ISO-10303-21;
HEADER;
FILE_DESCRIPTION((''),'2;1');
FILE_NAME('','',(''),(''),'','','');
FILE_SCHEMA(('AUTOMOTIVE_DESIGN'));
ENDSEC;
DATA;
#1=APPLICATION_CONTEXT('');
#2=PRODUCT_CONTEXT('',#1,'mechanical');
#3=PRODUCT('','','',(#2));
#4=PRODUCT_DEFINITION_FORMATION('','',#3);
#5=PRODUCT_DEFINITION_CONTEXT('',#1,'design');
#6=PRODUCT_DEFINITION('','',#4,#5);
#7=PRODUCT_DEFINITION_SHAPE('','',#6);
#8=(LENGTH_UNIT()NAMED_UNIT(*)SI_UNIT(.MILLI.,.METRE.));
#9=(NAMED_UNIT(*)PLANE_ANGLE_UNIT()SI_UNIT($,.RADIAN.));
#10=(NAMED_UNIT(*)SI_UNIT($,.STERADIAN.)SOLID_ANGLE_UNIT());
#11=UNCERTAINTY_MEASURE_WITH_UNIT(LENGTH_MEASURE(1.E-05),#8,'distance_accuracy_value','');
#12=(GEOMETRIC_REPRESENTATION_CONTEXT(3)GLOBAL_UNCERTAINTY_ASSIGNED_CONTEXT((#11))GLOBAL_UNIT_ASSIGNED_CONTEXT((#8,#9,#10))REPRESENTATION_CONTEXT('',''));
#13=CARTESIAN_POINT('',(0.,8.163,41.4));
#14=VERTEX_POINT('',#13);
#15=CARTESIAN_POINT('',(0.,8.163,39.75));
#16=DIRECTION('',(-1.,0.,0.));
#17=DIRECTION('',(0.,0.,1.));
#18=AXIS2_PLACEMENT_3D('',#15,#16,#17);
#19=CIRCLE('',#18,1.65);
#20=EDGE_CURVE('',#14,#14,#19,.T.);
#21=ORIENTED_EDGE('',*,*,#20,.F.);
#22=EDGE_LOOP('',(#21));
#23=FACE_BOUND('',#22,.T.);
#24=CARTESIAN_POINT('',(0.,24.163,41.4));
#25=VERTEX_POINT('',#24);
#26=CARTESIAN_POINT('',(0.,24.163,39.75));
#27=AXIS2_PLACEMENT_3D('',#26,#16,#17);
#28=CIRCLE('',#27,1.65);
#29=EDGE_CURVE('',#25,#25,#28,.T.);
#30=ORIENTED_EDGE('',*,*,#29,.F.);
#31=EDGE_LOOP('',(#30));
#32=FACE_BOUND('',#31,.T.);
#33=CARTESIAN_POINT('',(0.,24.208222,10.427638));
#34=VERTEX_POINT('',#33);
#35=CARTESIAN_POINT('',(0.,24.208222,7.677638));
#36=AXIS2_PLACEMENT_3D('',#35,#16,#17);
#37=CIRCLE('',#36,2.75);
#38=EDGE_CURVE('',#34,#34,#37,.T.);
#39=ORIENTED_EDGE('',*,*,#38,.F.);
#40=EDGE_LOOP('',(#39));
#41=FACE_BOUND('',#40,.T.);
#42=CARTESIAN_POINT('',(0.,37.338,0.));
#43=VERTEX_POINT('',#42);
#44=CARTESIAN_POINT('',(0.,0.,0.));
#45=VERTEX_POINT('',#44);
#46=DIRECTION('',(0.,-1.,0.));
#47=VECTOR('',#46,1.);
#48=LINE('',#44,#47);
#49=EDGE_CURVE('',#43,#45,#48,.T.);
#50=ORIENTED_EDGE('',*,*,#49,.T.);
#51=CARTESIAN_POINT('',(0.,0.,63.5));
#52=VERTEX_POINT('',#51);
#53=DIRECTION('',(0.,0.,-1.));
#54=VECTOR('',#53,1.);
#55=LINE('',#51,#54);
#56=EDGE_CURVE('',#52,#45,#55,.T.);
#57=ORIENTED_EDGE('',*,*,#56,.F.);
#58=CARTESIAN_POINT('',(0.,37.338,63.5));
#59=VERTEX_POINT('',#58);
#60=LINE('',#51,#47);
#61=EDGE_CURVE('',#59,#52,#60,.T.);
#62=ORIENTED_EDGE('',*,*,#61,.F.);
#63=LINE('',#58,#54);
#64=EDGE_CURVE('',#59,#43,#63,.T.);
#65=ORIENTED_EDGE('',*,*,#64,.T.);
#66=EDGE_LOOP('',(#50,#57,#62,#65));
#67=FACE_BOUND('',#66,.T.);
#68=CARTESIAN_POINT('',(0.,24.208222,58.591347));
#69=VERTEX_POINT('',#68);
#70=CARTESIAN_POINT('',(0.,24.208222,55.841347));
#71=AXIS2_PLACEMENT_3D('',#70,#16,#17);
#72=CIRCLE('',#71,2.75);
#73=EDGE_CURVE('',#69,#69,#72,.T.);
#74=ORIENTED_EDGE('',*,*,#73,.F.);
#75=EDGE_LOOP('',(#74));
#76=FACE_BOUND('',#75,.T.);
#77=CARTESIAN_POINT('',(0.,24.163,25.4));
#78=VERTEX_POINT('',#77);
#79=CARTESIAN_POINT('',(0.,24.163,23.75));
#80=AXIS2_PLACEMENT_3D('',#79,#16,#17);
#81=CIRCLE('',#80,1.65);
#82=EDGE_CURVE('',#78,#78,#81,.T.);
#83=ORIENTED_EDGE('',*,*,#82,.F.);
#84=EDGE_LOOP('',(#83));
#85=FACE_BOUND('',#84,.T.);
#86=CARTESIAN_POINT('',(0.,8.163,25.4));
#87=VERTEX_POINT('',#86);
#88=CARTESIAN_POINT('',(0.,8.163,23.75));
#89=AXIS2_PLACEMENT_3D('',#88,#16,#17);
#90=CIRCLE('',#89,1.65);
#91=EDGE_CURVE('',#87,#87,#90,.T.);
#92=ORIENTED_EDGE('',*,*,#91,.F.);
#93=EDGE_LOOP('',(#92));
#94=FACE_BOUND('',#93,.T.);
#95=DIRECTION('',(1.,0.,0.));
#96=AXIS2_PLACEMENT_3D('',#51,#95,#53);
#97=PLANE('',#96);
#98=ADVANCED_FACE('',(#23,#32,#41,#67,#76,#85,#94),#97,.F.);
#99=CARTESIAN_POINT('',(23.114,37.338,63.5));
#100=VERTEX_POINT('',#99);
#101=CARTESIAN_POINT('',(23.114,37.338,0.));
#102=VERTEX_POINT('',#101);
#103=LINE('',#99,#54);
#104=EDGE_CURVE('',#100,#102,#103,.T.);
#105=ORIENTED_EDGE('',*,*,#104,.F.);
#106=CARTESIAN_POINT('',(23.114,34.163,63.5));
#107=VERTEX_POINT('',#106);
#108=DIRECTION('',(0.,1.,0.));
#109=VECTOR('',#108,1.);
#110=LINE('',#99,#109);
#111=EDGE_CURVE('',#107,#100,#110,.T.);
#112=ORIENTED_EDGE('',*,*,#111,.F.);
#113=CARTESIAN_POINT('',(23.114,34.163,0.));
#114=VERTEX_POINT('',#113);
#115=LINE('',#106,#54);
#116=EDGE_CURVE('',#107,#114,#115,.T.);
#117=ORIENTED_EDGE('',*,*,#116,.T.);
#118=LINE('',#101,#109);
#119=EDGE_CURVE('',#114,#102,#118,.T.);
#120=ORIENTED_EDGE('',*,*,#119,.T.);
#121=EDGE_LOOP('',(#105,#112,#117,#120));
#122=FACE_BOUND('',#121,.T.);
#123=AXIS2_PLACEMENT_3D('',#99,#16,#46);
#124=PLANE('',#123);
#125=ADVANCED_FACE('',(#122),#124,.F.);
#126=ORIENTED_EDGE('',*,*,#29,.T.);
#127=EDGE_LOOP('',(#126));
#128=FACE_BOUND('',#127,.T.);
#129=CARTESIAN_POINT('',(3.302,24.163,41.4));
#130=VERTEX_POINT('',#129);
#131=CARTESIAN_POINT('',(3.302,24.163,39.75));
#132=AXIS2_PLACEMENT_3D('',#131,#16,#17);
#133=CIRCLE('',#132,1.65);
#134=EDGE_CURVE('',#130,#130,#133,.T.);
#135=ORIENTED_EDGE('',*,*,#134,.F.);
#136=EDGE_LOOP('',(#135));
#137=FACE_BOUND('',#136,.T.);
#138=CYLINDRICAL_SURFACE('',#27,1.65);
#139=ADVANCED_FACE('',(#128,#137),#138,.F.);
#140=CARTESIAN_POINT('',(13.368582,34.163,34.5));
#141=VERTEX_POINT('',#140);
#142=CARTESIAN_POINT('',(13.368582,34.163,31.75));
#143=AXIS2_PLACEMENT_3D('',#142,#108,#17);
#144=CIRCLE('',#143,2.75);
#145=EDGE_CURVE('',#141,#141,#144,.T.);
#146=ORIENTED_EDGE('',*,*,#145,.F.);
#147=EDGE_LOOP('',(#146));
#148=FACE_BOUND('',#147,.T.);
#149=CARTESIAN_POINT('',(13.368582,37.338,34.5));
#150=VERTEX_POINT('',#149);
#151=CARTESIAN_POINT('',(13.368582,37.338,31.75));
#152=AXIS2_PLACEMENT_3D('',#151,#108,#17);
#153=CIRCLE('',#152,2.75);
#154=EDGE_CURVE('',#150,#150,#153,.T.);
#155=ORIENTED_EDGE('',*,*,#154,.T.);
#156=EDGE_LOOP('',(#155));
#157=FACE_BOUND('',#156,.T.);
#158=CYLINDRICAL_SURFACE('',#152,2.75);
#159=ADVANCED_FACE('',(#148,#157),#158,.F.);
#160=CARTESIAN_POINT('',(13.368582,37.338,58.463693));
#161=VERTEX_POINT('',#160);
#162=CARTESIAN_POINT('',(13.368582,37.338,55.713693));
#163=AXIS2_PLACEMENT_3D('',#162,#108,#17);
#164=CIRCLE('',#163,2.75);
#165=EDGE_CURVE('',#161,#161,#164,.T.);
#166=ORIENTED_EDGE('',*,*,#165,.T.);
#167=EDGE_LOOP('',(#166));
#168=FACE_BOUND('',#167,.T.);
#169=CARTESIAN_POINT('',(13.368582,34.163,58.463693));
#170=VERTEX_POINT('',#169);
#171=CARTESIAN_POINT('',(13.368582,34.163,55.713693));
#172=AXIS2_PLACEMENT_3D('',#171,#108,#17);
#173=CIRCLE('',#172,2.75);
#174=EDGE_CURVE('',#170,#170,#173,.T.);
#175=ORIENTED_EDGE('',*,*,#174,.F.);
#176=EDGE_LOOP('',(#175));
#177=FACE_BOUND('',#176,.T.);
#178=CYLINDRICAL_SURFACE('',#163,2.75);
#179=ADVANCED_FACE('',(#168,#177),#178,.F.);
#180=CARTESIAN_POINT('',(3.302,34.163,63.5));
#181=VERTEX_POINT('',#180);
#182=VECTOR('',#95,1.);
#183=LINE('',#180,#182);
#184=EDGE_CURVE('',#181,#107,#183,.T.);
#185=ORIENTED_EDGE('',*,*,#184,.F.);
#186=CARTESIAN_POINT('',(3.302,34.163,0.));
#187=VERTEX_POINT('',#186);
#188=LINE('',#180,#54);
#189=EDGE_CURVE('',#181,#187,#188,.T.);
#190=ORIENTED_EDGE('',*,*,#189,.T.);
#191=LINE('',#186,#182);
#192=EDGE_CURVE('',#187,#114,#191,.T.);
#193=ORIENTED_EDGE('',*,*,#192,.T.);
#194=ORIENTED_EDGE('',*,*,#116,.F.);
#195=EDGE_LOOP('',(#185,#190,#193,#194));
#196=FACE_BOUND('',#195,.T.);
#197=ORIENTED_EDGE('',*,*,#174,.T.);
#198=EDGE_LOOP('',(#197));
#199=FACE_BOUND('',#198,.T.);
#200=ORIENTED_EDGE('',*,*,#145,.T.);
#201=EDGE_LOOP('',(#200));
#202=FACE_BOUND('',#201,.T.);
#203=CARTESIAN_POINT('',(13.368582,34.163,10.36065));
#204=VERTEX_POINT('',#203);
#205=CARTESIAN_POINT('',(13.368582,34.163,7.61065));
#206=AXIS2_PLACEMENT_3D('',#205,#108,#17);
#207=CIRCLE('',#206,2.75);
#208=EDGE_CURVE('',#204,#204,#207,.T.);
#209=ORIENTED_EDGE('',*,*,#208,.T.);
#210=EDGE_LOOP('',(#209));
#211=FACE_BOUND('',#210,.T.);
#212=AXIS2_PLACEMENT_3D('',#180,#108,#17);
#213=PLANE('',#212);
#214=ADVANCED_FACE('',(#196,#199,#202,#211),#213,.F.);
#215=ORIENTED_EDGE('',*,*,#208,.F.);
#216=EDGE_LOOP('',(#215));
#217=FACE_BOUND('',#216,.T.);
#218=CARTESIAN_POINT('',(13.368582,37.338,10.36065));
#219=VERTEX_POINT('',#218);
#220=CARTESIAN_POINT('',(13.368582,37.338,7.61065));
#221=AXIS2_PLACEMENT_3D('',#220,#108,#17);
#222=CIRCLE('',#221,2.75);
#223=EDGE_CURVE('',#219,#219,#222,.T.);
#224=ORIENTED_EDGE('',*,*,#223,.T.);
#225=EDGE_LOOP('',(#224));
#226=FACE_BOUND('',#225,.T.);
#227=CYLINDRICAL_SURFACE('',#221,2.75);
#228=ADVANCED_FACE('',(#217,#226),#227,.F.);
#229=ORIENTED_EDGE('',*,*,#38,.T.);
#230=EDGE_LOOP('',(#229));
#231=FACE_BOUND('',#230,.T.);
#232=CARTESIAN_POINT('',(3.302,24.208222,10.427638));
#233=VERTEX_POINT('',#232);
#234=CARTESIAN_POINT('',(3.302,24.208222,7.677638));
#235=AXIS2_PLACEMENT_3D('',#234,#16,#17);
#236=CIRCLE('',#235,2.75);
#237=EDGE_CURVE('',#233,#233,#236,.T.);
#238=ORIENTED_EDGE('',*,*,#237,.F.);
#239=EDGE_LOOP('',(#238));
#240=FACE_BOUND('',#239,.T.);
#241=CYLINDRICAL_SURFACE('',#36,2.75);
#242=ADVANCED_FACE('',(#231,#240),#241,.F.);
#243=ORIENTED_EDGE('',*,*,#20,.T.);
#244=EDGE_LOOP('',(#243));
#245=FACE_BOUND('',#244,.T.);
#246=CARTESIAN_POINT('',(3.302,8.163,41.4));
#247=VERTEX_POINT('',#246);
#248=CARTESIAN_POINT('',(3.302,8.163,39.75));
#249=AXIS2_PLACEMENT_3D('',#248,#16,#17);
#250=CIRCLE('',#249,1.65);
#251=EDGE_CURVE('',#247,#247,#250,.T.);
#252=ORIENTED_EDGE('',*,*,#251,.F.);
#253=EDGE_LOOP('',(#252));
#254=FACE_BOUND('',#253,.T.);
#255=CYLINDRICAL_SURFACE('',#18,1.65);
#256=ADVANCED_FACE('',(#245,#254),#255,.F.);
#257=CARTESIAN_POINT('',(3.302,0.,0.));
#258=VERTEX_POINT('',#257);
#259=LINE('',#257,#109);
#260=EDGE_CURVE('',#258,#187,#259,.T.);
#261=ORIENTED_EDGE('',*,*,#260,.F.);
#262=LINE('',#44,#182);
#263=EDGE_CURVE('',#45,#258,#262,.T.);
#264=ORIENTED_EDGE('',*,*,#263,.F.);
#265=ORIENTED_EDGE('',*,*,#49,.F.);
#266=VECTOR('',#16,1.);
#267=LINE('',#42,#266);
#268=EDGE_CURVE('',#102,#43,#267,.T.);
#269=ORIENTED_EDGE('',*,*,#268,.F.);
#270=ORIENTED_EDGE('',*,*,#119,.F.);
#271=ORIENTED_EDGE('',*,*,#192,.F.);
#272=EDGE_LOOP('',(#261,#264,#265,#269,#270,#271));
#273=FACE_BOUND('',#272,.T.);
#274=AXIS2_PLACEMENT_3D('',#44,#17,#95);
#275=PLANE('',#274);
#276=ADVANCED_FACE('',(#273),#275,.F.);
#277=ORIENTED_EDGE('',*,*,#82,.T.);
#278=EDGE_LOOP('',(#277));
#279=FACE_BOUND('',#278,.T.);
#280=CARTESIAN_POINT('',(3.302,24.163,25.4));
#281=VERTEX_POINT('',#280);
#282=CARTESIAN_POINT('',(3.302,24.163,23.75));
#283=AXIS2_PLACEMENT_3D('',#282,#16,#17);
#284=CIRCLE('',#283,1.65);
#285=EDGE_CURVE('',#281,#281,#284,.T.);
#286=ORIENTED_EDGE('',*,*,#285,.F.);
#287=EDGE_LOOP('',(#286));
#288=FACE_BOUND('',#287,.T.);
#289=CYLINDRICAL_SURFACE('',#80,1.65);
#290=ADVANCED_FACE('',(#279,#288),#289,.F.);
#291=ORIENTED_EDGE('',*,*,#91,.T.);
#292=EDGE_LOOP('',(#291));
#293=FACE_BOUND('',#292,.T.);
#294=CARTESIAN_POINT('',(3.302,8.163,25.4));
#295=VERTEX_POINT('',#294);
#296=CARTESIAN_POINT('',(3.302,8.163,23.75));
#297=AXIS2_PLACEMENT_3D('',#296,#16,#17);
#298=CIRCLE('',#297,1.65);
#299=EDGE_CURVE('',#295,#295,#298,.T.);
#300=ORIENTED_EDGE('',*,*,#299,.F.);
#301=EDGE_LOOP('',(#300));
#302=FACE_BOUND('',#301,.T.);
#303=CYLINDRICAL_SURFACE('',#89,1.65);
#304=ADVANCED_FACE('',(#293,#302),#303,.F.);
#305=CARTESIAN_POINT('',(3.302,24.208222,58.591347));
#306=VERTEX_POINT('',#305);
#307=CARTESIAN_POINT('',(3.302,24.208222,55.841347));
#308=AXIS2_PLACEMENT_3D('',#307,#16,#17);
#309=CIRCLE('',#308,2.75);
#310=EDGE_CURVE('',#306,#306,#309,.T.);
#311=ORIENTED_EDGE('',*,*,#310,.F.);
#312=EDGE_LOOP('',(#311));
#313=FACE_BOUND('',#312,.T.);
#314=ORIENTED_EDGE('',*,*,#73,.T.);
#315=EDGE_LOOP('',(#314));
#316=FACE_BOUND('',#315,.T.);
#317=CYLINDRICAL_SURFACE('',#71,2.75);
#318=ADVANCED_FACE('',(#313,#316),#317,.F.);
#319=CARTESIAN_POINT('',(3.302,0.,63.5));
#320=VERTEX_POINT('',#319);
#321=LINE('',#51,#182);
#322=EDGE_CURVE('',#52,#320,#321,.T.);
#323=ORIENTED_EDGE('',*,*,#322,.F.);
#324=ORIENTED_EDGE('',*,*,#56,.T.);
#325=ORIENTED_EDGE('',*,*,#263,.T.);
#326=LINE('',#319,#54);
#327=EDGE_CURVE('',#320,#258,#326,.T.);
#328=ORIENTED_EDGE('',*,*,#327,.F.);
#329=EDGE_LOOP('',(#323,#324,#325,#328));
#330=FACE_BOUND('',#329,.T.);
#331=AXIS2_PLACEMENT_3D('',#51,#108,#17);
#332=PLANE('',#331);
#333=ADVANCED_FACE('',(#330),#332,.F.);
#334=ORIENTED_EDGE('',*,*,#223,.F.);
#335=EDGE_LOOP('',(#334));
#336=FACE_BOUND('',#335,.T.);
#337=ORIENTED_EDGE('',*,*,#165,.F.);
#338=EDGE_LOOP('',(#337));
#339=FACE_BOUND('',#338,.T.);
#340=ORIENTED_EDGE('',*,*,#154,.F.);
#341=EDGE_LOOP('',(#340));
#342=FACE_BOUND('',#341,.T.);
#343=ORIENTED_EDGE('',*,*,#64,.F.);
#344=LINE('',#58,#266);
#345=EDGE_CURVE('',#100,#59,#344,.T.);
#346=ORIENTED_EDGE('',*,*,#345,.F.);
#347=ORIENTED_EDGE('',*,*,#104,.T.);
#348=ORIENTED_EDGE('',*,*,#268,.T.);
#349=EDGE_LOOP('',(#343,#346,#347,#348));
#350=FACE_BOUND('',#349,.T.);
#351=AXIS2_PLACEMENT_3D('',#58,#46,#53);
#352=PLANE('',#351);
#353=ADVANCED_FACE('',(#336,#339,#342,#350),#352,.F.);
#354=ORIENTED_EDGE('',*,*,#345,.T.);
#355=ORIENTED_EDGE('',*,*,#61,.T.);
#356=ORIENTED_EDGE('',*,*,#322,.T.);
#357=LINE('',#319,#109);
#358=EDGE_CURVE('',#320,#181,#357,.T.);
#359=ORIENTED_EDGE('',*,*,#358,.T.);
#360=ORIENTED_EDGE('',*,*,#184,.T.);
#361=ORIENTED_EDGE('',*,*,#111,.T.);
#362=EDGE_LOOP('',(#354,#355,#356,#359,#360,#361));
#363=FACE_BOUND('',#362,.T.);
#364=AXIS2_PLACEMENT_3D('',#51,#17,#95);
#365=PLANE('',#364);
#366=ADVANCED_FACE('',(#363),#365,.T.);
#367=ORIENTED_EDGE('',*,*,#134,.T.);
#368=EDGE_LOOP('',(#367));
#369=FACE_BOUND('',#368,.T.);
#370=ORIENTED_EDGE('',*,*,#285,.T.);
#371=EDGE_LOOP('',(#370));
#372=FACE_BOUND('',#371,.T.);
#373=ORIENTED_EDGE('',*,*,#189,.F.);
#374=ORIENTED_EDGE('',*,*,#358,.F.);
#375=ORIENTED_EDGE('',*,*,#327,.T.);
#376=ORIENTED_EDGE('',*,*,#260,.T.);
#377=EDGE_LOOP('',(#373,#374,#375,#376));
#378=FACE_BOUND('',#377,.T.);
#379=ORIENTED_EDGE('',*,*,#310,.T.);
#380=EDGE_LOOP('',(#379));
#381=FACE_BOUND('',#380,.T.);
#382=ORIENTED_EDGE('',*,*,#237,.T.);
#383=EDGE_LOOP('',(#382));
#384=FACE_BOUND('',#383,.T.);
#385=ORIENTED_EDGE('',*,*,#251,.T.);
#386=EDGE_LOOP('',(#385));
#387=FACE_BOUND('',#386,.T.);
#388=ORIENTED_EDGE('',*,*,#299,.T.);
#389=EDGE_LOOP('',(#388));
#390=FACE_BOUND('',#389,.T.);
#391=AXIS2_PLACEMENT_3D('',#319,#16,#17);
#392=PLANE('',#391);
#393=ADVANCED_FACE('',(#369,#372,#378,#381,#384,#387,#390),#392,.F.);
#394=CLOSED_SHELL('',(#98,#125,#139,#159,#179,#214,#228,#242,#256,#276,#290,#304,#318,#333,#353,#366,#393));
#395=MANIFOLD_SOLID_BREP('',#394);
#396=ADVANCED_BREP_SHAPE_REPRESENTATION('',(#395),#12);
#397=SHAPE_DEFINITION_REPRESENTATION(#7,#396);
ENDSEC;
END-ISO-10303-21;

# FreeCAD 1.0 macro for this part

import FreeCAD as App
import Part
import Sketcher

V = App.Vector
Q = App.Units.Quantity


def add_polygon(sketch, points):
    """Adds a closed chain of lines whose ends are joined by coincident constraints."""
    first, n = sketch.GeometryCount, len(points)
    for a, b in zip(points, points[1:] + points[:1]):
        sketch.addGeometry(Part.LineSegment(App.Vector(*a, 0), App.Vector(*b, 0)), False)
    for i in range(n):
        sketch.addConstraint(Sketcher.Constraint("Coincident", first + i, 2, first + (i + 1) % n, 1))

doc = App.newDocument("Part")
body = doc.addObject("PartDesign::Body", "Body")

# Sketch on XY plane
sketch1 = body.newObject("Sketcher::SketchObject", "Sketch")
sketch1.AttachmentSupport = (doc.getObject("XY_Plane"), [""])
sketch1.MapMode = "FlatFace"
add_polygon(sketch1, [(0, 37.3), (0, 0), (3.3, 0), (3.3, 34.2), (23.1, 34.2), (23.1, 37.3)])  # lines 0-5
sketch1.addConstraint([
    Sketcher.Constraint("Vertical", 0),
    Sketcher.Constraint("Horizontal", 1),
    Sketcher.Constraint("Vertical", 2),
    Sketcher.Constraint("Horizontal", 3),
    Sketcher.Constraint("Vertical", 4),
    Sketcher.Constraint("Horizontal", 5),
    Sketcher.Constraint("Coincident", 0, 2, -1, 1),
    Sketcher.Constraint("DistanceX", 1, 1, 1, 2, Q("0.13 in")),
    Sketcher.Constraint("DistanceX", 3, 1, 3, 2, Q("0.78 in")),
    Sketcher.Constraint("DistanceY", 0, 2, 0, 1, Q("1.47 in")),
    Sketcher.Constraint("DistanceY", 2, 1, 2, 2, Q("1.345 in")),
])
pad1 = body.newObject("PartDesign::Pad", "Pad")
pad1.Profile = sketch1
pad1.Length = Q("2.5 in")

# Sketch on YZ plane
sketch2 = body.newObject("Sketcher::SketchObject", "Sketch001")
sketch2.AttachmentSupport = (doc.getObject("YZ_Plane"), [""])
sketch2.MapMode = "FlatFace"
sketch2.addGeometry(Part.Circle(V(24.2, 55.8, 0), V(0, 0, 1), 2.8), False)
sketch2.addConstraint([
    Sketcher.Constraint("Diameter", 0, Q("5.5 mm")),
    Sketcher.Constraint("DistanceX", -1, 1, 0, 3, Q("24.208222 mm")),
    Sketcher.Constraint("DistanceY", -1, 1, 0, 3, Q("55.841347 mm")),
])
doc.recompute()
hole = body.newObject("PartDesign::Hole", "Hole")
hole.Profile = sketch2
hole.ThreadType = "None"
hole.Diameter = 5.5
hole.DepthType = "ThroughAll"
hole.Reversed = True

# Sketch on YZ plane
sketch3 = body.newObject("Sketcher::SketchObject", "Sketch002")
sketch3.AttachmentSupport = (doc.getObject("YZ_Plane"), [""])
sketch3.MapMode = "FlatFace"
sketch3.addGeometry(Part.Circle(V(24.2, 7.7, 0), V(0, 0, 1), 2.8), False)
sketch3.addConstraint([
    Sketcher.Constraint("Diameter", 0, Q("5.5 mm")),
    Sketcher.Constraint("DistanceX", -1, 1, 0, 3, Q("24.208222 mm")),
    Sketcher.Constraint("DistanceY", -1, 1, 0, 3, Q("7.677638 mm")),
])
doc.recompute()
hole2 = body.newObject("PartDesign::Hole", "Hole001")
hole2.Profile = sketch3
hole2.ThreadType = "None"
hole2.Diameter = 5.5
hole2.DepthType = "ThroughAll"
hole2.Reversed = True

# Sketch on XZ plane
sketch4 = body.newObject("Sketcher::SketchObject", "Sketch003")
sketch4.AttachmentSupport = (doc.getObject("XZ_Plane"), [""])
sketch4.MapMode = "FlatFace"
sketch4.AttachmentOffset = App.Placement(V(0, 0, -1.47 * 25.4), App.Rotation())
sketch4.addGeometry(Part.Circle(V(13.4, 31.8, 0), V(0, 0, 1), 2.8), False)
sketch4.addConstraint([
    Sketcher.Constraint("Diameter", 0, Q("5.5 mm")),
    Sketcher.Constraint("DistanceY", -1, 1, 0, 3, Q("1.25 in")),
    Sketcher.Constraint("DistanceX", -1, 1, 0, 3, Q("13.368582 mm")),
])
doc.recompute()
hole3 = body.newObject("PartDesign::Hole", "Hole002")
hole3.Profile = sketch4
hole3.ThreadType = "None"
hole3.Diameter = 5.5
hole3.DepthType = "ThroughAll"
hole3.Reversed = True

# Sketch on XZ plane
sketch5 = body.newObject("Sketcher::SketchObject", "Sketch004")
sketch5.AttachmentSupport = (doc.getObject("XZ_Plane"), [""])
sketch5.MapMode = "FlatFace"
sketch5.AttachmentOffset = App.Placement(V(0, 0, -1.47 * 25.4), App.Rotation())
sketch5.addGeometry(Part.Circle(V(13.4, 55.7, 0), V(0, 0, 1), 2.8), False)
sketch5.addConstraint([
    Sketcher.Constraint("Diameter", 0, Q("5.5 mm")),
    Sketcher.Constraint("DistanceX", -1, 1, 0, 3, Q("13.368582 mm")),
    Sketcher.Constraint("DistanceY", -1, 1, 0, 3, Q("55.713693 mm")),
])
doc.recompute()
hole4 = body.newObject("PartDesign::Hole", "Hole003")
hole4.Profile = sketch5
hole4.ThreadType = "None"
hole4.Diameter = 5.5
hole4.DepthType = "ThroughAll"
hole4.Reversed = True

# Sketch on XZ plane
sketch6 = body.newObject("Sketcher::SketchObject", "Sketch005")
sketch6.AttachmentSupport = (doc.getObject("XZ_Plane"), [""])
sketch6.MapMode = "FlatFace"
sketch6.AttachmentOffset = App.Placement(V(0, 0, -1.47 * 25.4), App.Rotation())
sketch6.addGeometry(Part.Circle(V(13.4, 7.6, 0), V(0, 0, 1), 2.8), False)
sketch6.addConstraint([
    Sketcher.Constraint("Diameter", 0, Q("5.5 mm")),
    Sketcher.Constraint("DistanceY", -1, 1, 0, 3, Q("7.61065 mm")),
    Sketcher.Constraint("DistanceX", -1, 1, 0, 3, Q("13.368582 mm")),
])
doc.recompute()
hole5 = body.newObject("PartDesign::Hole", "Hole004")
hole5.Profile = sketch6
hole5.ThreadType = "None"
hole5.Diameter = 5.5
hole5.DepthType = "ThroughAll"
hole5.Reversed = True

# Sketch on YZ plane
sketch7 = body.newObject("Sketcher::SketchObject", "Sketch006")
sketch7.AttachmentSupport = (doc.getObject("YZ_Plane"), [""])
sketch7.MapMode = "FlatFace"
sketch7.addGeometry([
    Part.Circle(V(24.2, 23.8, 0), V(0, 0, 1), 1.6),
    Part.Circle(V(8.2, 23.8, 0), V(0, 0, 1), 1.6),
    Part.Circle(V(8.2, 39.8, 0), V(0, 0, 1), 1.6),
    Part.Circle(V(24.2, 39.8, 0), V(0, 0, 1), 1.6),
], False)
sketch7.addConstraint([
    Sketcher.Constraint("Equal", 0, 1),
    Sketcher.Constraint("Equal", 1, 2),
    Sketcher.Constraint("Equal", 2, 3),
    Sketcher.Constraint("Horizontal", 0, 3, 1, 3),
    Sketcher.Constraint("Horizontal", 2, 3, 3, 3),
    Sketcher.Constraint("Vertical", 1, 3, 2, 3),
    Sketcher.Constraint("Vertical", 0, 3, 3, 3),
    Sketcher.Constraint("Diameter", 0, Q("3.3 mm")),
    Sketcher.Constraint("DistanceX", -1, 1, 0, 3, Q("24.163 mm")),
    Sketcher.Constraint("DistanceY", -1, 1, 0, 3, Q("23.75 mm")),
    Sketcher.Constraint("DistanceX", -1, 1, 1, 3, Q("8.163 mm")),
    Sketcher.Constraint("DistanceY", -1, 1, 2, 3, Q("39.75 mm")),
])
doc.recompute()
hole6 = body.newObject("PartDesign::Hole", "Hole005")
hole6.Profile = sketch7
hole6.ThreadType = "None"
hole6.Diameter = 3.3
hole6.DepthType = "ThroughAll"
hole6.Reversed = True

doc.recompute()
